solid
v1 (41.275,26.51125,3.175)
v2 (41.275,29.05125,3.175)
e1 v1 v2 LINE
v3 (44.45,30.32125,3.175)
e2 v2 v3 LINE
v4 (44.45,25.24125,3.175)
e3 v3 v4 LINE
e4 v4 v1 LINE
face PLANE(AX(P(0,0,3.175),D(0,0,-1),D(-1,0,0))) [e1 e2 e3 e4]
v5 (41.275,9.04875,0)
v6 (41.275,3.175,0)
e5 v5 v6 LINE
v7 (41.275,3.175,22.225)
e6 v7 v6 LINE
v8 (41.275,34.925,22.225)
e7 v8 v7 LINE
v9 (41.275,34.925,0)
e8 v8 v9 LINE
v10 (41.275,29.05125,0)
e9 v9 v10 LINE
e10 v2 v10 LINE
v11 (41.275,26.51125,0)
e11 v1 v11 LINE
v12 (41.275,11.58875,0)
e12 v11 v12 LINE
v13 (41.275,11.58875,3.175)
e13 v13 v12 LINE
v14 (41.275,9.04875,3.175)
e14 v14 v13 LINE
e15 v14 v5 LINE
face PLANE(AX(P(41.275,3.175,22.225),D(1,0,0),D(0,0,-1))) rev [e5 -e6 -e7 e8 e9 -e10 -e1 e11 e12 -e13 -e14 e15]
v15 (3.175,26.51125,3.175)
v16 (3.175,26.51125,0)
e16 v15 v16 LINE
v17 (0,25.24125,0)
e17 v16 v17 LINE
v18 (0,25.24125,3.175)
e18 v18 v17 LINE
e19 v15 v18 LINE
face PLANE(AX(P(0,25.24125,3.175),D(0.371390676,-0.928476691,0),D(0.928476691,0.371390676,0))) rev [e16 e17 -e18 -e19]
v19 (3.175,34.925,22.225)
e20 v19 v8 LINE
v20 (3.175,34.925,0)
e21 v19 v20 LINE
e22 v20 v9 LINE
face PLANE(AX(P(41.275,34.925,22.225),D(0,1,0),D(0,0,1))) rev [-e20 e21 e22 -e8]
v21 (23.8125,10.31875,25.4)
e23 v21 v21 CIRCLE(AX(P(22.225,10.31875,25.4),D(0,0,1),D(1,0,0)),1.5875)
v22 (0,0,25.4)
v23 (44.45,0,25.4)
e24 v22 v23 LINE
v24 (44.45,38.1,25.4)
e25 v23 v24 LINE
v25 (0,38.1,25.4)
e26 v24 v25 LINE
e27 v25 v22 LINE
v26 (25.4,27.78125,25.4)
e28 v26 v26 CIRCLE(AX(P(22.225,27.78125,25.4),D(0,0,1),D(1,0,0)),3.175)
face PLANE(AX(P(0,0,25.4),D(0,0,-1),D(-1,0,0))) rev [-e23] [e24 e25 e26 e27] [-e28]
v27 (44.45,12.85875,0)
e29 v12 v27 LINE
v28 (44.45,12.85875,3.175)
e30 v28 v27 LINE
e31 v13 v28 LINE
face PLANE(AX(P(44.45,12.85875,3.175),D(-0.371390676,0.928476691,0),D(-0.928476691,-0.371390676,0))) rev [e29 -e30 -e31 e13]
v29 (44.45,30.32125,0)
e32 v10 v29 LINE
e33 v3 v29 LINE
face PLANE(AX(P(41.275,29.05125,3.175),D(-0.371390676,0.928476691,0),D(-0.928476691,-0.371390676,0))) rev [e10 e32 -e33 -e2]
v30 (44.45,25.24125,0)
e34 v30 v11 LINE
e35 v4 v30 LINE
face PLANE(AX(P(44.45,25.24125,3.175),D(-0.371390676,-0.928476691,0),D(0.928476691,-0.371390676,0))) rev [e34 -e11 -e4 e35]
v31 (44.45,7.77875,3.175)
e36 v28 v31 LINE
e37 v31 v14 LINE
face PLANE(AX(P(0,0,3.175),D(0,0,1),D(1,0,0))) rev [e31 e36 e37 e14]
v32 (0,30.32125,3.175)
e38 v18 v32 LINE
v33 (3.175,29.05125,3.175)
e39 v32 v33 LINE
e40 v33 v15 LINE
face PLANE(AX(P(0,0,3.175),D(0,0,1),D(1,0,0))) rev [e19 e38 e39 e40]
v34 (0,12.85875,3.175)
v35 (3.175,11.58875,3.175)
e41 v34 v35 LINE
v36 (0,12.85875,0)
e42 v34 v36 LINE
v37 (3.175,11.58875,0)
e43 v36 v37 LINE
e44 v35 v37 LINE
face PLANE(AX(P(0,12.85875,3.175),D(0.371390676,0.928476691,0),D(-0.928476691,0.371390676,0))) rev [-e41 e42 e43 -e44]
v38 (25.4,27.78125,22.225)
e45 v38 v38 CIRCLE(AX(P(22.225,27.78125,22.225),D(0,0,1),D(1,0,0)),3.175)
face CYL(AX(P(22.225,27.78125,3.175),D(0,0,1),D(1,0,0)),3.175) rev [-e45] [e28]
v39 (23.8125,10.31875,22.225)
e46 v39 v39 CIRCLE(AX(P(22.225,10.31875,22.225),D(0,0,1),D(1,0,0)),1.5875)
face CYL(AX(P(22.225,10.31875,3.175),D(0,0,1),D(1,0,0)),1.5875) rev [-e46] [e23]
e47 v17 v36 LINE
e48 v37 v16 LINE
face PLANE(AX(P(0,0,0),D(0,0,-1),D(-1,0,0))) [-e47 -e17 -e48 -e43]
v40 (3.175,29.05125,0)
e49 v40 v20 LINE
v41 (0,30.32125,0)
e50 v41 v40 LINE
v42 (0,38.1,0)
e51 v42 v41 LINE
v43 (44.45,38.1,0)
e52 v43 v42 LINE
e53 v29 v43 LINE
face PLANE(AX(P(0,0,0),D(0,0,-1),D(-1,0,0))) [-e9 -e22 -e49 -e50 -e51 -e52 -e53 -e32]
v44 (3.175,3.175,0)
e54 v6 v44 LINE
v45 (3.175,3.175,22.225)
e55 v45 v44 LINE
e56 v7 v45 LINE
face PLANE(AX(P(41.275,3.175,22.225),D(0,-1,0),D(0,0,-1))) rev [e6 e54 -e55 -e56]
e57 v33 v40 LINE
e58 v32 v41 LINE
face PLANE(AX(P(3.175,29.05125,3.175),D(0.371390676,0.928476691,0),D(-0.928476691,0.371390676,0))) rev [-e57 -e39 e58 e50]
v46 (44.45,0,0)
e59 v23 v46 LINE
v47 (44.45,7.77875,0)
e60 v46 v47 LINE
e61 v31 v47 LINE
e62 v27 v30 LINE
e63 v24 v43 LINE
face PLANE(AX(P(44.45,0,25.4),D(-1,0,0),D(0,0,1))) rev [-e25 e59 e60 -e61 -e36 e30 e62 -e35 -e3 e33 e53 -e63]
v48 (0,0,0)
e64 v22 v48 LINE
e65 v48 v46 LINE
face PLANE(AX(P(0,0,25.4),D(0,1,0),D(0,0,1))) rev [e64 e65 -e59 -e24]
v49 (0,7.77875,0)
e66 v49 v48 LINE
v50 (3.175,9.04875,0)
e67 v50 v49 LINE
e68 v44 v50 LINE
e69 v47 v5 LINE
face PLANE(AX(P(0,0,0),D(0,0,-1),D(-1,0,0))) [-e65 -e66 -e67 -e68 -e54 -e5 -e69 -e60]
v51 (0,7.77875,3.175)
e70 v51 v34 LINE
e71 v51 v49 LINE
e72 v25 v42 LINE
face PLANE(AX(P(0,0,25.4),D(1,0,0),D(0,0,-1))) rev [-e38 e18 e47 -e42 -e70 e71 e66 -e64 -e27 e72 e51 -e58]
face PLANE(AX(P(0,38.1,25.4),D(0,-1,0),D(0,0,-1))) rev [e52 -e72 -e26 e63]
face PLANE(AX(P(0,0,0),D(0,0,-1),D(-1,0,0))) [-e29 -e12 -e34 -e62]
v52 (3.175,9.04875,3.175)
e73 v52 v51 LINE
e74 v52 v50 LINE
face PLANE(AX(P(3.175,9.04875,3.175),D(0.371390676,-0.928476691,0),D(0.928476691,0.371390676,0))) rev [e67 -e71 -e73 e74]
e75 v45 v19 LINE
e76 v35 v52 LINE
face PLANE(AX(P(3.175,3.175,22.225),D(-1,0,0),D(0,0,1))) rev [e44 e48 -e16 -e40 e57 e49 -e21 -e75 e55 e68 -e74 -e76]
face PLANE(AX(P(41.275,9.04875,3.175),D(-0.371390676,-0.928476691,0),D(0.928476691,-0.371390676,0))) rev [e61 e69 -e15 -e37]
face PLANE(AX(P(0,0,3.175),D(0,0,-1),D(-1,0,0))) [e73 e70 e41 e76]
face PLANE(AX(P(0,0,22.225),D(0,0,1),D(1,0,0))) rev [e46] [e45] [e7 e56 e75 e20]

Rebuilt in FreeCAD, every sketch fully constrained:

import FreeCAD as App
import Part
import Sketcher
from FreeCAD import Vector
Q = App.Units.Quantity

doc = App.newDocument("Part")
body = doc.addObject("PartDesign::Body", "Body")

sketch1 = body.newObject("Sketcher::SketchObject", "Sketch")
sketch1.AttachmentSupport = (doc.getObject("XY_Plane"), [""])
sketch1.MapMode = "FlatFace"
sketch1.addGeometry(Part.LineSegment(Vector(0, 38, 0), Vector(0, 0, 0)), False)
sketch1.addGeometry(Part.LineSegment(Vector(0, 0, 0), Vector(44, 0, 0)), False)
sketch1.addGeometry(Part.LineSegment(Vector(44, 0, 0), Vector(44, 38, 0)), False)
sketch1.addGeometry(Part.LineSegment(Vector(44, 38, 0), Vector(0, 38, 0)), False)
sketch1.addConstraint(Sketcher.Constraint("Coincident", 0, 2, 1, 1))
sketch1.addConstraint(Sketcher.Constraint("Coincident", 1, 2, 2, 1))
sketch1.addConstraint(Sketcher.Constraint("Coincident", 2, 2, 3, 1))
sketch1.addConstraint(Sketcher.Constraint("Coincident", 3, 2, 0, 1))
sketch1.addConstraint(Sketcher.Constraint("Vertical", 0))
sketch1.addConstraint(Sketcher.Constraint("Horizontal", 1))
sketch1.addConstraint(Sketcher.Constraint("Vertical", 2))
sketch1.addConstraint(Sketcher.Constraint("Horizontal", 3))
sketch1.addConstraint(Sketcher.Constraint("Coincident", 0, 2, -1, 1))
sketch1.addConstraint(Sketcher.Constraint("DistanceY", 0, 2, 0, 1, Q("1.5 in")))
sketch1.addConstraint(Sketcher.Constraint("DistanceX", 1, 1, 1, 2, Q("1.75 in")))
pad1 = body.newObject("PartDesign::Pad", "Pad")
pad1.Profile = sketch1
pad1.Length = Q("1 in")

sketch2 = body.newObject("Sketcher::SketchObject", "Sketch001")
sketch2.AttachmentSupport = (doc.getObject("XY_Plane"), [""])
sketch2.MapMode = "FlatFace"
sketch2.addGeometry(Part.LineSegment(Vector(41, 35, 0), Vector(41, 3, 0)), False)
sketch2.addGeometry(Part.LineSegment(Vector(41, 3, 0), Vector(3, 3, 0)), False)
sketch2.addGeometry(Part.LineSegment(Vector(3, 3, 0), Vector(3, 35, 0)), False)
sketch2.addGeometry(Part.LineSegment(Vector(3, 35, 0), Vector(41, 35, 0)), False)
sketch2.addConstraint(Sketcher.Constraint("Coincident", 0, 2, 1, 1))
sketch2.addConstraint(Sketcher.Constraint("Coincident", 1, 2, 2, 1))
sketch2.addConstraint(Sketcher.Constraint("Coincident", 2, 2, 3, 1))
sketch2.addConstraint(Sketcher.Constraint("Coincident", 3, 2, 0, 1))
sketch2.addConstraint(Sketcher.Constraint("Vertical", 0))
sketch2.addConstraint(Sketcher.Constraint("Horizontal", 1))
sketch2.addConstraint(Sketcher.Constraint("Vertical", 2))
sketch2.addConstraint(Sketcher.Constraint("Horizontal", 3))
sketch2.addConstraint(Sketcher.Constraint("DistanceX", 1, 2, 1, 1, Q("1.5 in")))
sketch2.addConstraint(Sketcher.Constraint("DistanceY", 0, 2, 0, 1, Q("1.25 in")))
sketch2.addConstraint(Sketcher.Constraint("DistanceX", -1, 1, 0, 2, Q("1.625 in")))
sketch2.addConstraint(Sketcher.Constraint("DistanceY", -1, 1, 0, 2, Q("0.125 in")))
pocket1 = body.newObject("PartDesign::Pocket", "Pocket")
pocket1.Profile = sketch2
pocket1.Length = Q("0.875 in")
pocket1.Reversed = True

sketch3 = body.newObject("Sketcher::SketchObject", "Sketch002")
sketch3.AttachmentSupport = (doc.getObject("XY_Plane"), [""])
sketch3.MapMode = "FlatFace"
sketch3.AttachmentOffset = App.Placement(Vector(0, 0, 1 * 25.4), App.Rotation())
sketch3.addGeometry(Part.Circle(Vector(22.2, 27.8, 0), Vector(0, 0, 1), 3.2), False)
sketch3.addGeometry(Part.Circle(Vector(22.2, 10.3, 0), Vector(0, 0, 1), 1.6), False)
sketch3.addConstraint(Sketcher.Constraint("Vertical", 0, 3, 1, 3))
sketch3.addConstraint(Sketcher.Constraint("Diameter", 0, Q("0.25 in")))
sketch3.addConstraint(Sketcher.Constraint("Diameter", 1, Q("0.125 in")))
sketch3.addConstraint(Sketcher.Constraint("DistanceX", -1, 1, 0, 3, Q("0.875 in")))
sketch3.addConstraint(Sketcher.Constraint("DistanceY", -1, 1, 0, 3, Q("1.09375 in")))
sketch3.addConstraint(Sketcher.Constraint("DistanceY", -1, 1, 1, 3, Q("0.40625 in")))
pocket2 = body.newObject("PartDesign::Pocket", "Pocket001")
pocket2.Profile = sketch3
pocket2.Length = Q("0.875 in")

sketch4 = body.newObject("Sketcher::SketchObject", "Sketch003")
sketch4.AttachmentSupport = (doc.getObject("XY_Plane"), [""])
sketch4.MapMode = "FlatFace"
sketch4.addGeometry(Part.LineSegment(Vector(41.3, 26.5, 0), Vector(41.3, 29.1, 0)), False)
sketch4.addGeometry(Part.LineSegment(Vector(41.3, 29.1, 0), Vector(44.5, 30.3, 0)), False)
sketch4.addGeometry(Part.LineSegment(Vector(44.5, 30.3, 0), Vector(44.5, 25.2, 0)), False)
sketch4.addGeometry(Part.LineSegment(Vector(44.5, 25.2, 0), Vector(41.3, 26.5, 0)), False)
sketch4.addGeometry(Part.LineSegment(Vector(41.3, 11.6, 0), Vector(44.5, 12.9, 0)), False)
sketch4.addGeometry(Part.LineSegment(Vector(44.5, 12.9, 0), Vector(44.5, 7.8, 0)), False)
sketch4.addGeometry(Part.LineSegment(Vector(44.5, 7.8, 0), Vector(41.3, 9, 0)), False)
sketch4.addGeometry(Part.LineSegment(Vector(41.3, 9, 0), Vector(41.3, 11.6, 0)), False)
sketch4.addGeometry(Part.LineSegment(Vector(3.2, 26.5, 0), Vector(0, 25.2, 0)), False)
sketch4.addGeometry(Part.LineSegment(Vector(0, 25.2, 0), Vector(0, 30.3, 0)), False)
sketch4.addGeometry(Part.LineSegment(Vector(0, 30.3, 0), Vector(3.2, 29.1, 0)), False)
sketch4.addGeometry(Part.LineSegment(Vector(3.2, 29.1, 0), Vector(3.2, 26.5, 0)), False)
sketch4.addGeometry(Part.LineSegment(Vector(0, 7.8, 0), Vector(0, 12.9, 0)), False)
sketch4.addGeometry(Part.LineSegment(Vector(0, 12.9, 0), Vector(3.2, 11.6, 0)), False)
sketch4.addGeometry(Part.LineSegment(Vector(3.2, 11.6, 0), Vector(3.2, 9, 0)), False)
sketch4.addGeometry(Part.LineSegment(Vector(3.2, 9, 0), Vector(0, 7.8, 0)), False)
sketch4.addConstraint(Sketcher.Constraint("Coincident", 0, 2, 1, 1))
sketch4.addConstraint(Sketcher.Constraint("Coincident", 1, 2, 2, 1))
sketch4.addConstraint(Sketcher.Constraint("Coincident", 2, 2, 3, 1))
sketch4.addConstraint(Sketcher.Constraint("Coincident", 3, 2, 0, 1))
sketch4.addConstraint(Sketcher.Constraint("Coincident", 4, 2, 5, 1))
sketch4.addConstraint(Sketcher.Constraint("Coincident", 5, 2, 6, 1))
sketch4.addConstraint(Sketcher.Constraint("Coincident", 6, 2, 7, 1))
sketch4.addConstraint(Sketcher.Constraint("Coincident", 7, 2, 4, 1))
sketch4.addConstraint(Sketcher.Constraint("Coincident", 8, 2, 9, 1))
sketch4.addConstraint(Sketcher.Constraint("Coincident", 9, 2, 10, 1))
sketch4.addConstraint(Sketcher.Constraint("Coincident", 10, 2, 11, 1))
sketch4.addConstraint(Sketcher.Constraint("Coincident", 11, 2, 8, 1))
sketch4.addConstraint(Sketcher.Constraint("Coincident", 12, 2, 13, 1))
sketch4.addConstraint(Sketcher.Constraint("Coincident", 13, 2, 14, 1))
sketch4.addConstraint(Sketcher.Constraint("Coincident", 14, 2, 15, 1))
sketch4.addConstraint(Sketcher.Constraint("Coincident", 15, 2, 12, 1))
sketch4.addConstraint(Sketcher.Constraint("Vertical", 0))
sketch4.addConstraint(Sketcher.Constraint("Vertical", 2))
sketch4.addConstraint(Sketcher.Constraint("Vertical", 5))
sketch4.addConstraint(Sketcher.Constraint("Vertical", 7))
sketch4.addConstraint(Sketcher.Constraint("Vertical", 9))
sketch4.addConstraint(Sketcher.Constraint("Vertical", 11))
sketch4.addConstraint(Sketcher.Constraint("Vertical", 12))
sketch4.addConstraint(Sketcher.Constraint("Vertical", 14))
sketch4.addConstraint(Sketcher.Constraint("PointOnObject", 8, 2, -2))
sketch4.addConstraint(Sketcher.Constraint("PointOnObject", 12, 2, -2))
sketch4.addConstraint(Sketcher.Constraint("Parallel", 1, 4))
sketch4.addConstraint(Sketcher.Constraint("Parallel", 3, 6))
sketch4.addConstraint(Sketcher.Constraint("Parallel", 4, 8))
sketch4.addConstraint(Sketcher.Constraint("Parallel", 6, 10))
sketch4.addConstraint(Sketcher.Constraint("Parallel", 10, 13))
sketch4.addConstraint(Sketcher.Constraint("Parallel", 8, 15))
sketch4.addConstraint(Sketcher.Constraint("Horizontal", 2, 2, 8, 2))
sketch4.addConstraint(Sketcher.Constraint("Horizontal", 1, 2, 9, 2))
sketch4.addConstraint(Sketcher.Constraint("Horizontal", 0, 2, 10, 2))
sketch4.addConstraint(Sketcher.Constraint("Horizontal", 3, 2, 11, 2))
sketch4.addConstraint(Sketcher.Constraint("Horizontal", 4, 2, 12, 2))
sketch4.addConstraint(Sketcher.Constraint("Horizontal", 7, 2, 13, 2))
sketch4.addConstraint(Sketcher.Constraint("Horizontal", 6, 2, 14, 2))
sketch4.addConstraint(Sketcher.Constraint("Vertical", 2, 2, 4, 2))
sketch4.addConstraint(Sketcher.Constraint("Vertical", 3, 2, 6, 2))
sketch4.addConstraint(Sketcher.Constraint("Equal", 2, 5))
sketch4.addConstraint(Sketcher.Constraint("DistanceY", 0, 1, 0, 2, Q("0.1 in")))
sketch4.addConstraint(Sketcher.Constraint("DistanceY", 2, 2, 2, 1, Q("0.2 in")))
sketch4.addConstraint(Sketcher.Constraint("DistanceX", 10, 2, 0, 2, Q("1.5 in")))
sketch4.addConstraint(Sketcher.Constraint("DistanceX", -1, 1, 1, 2, Q("1.75 in")))
sketch4.addConstraint(Sketcher.Constraint("DistanceY", 4, 2, 1, 2, Q("0.6875 in")))
sketch4.addConstraint(Sketcher.Constraint("DistanceY", -1, 1, 0, 2, 29.05125))
pocket3 = body.newObject("PartDesign::Pocket", "Pocket002")
pocket3.Profile = sketch4
pocket3.Length = Q("0.125 in")
pocket3.Reversed = True

doc.recompute()
